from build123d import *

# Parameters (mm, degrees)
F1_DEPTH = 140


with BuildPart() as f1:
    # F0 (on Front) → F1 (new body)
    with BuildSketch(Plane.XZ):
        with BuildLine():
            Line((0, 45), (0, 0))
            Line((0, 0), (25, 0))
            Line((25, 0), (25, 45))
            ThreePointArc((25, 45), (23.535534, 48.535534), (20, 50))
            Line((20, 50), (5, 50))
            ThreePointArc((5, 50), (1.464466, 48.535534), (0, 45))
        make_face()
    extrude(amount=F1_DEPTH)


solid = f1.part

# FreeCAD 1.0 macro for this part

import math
import FreeCAD as App
import Part
import Sketcher
from FreeCAD import Vector
Q = App.Units.Quantity

doc = App.newDocument("Part")
body = doc.addObject("PartDesign::Body", "Body")

# Sketch on XZ plane
sketch1 = body.newObject("Sketcher::SketchObject", "Sketch")
sketch1.AttachmentSupport = (doc.getObject("XZ_Plane"), [""])
sketch1.MapMode = "FlatFace"
sketch1.addGeometry([
    Part.LineSegment(Vector(0, 45, 0), Vector(0, 0, 0)),  # 0
    Part.LineSegment(Vector(0, 0, 0), Vector(25, 0, 0)),  # 1
    Part.LineSegment(Vector(25, 0, 0), Vector(25, 45, 0)),  # 2
    Part.ArcOfCircle(Part.Circle(Vector(20, 45, 0), Vector(0, 0, 1), 5), math.radians(-0.000004), math.radians(90.000004)),  # 3
    Part.LineSegment(Vector(20, 50, 0), Vector(5, 50, 0)),  # 4
    Part.ArcOfCircle(Part.Circle(Vector(5, 45, 0), Vector(0, 0, 1), 5), math.radians(89.999996), math.radians(180.000004)),  # 5
], False)
sketch1.addConstraint([
    Sketcher.Constraint("Coincident", 0, 2, 1, 1),
    Sketcher.Constraint("Coincident", 1, 2, 2, 1),
    Sketcher.Constraint("Tangent", 2, 2, 3, 1),
    Sketcher.Constraint("Tangent", 3, 2, 4, 1),
    Sketcher.Constraint("Tangent", 4, 2, 5, 1),
    Sketcher.Constraint("Tangent", 5, 2, 0, 1),
    Sketcher.Constraint("Vertical", 0),
    Sketcher.Constraint("Horizontal", 1),
    Sketcher.Constraint("Vertical", 2),
    Sketcher.Constraint("Horizontal", 4),
    Sketcher.Constraint("Coincident", 0, 2, -1, 1),
    Sketcher.Constraint("Equal", 3, 5),
    Sketcher.Constraint("Radius", 3, Q("5 mm")),
    Sketcher.Constraint("DistanceX", 1, 1, 1, 2, Q("25 mm")),
    Sketcher.Constraint("DistanceY", 0, 2, 0, 1, Q("45 mm")),
])
pad1 = body.newObject("PartDesign::Pad", "Pad")
pad1.Profile = sketch1
pad1.Length = 140

doc.recompute()
